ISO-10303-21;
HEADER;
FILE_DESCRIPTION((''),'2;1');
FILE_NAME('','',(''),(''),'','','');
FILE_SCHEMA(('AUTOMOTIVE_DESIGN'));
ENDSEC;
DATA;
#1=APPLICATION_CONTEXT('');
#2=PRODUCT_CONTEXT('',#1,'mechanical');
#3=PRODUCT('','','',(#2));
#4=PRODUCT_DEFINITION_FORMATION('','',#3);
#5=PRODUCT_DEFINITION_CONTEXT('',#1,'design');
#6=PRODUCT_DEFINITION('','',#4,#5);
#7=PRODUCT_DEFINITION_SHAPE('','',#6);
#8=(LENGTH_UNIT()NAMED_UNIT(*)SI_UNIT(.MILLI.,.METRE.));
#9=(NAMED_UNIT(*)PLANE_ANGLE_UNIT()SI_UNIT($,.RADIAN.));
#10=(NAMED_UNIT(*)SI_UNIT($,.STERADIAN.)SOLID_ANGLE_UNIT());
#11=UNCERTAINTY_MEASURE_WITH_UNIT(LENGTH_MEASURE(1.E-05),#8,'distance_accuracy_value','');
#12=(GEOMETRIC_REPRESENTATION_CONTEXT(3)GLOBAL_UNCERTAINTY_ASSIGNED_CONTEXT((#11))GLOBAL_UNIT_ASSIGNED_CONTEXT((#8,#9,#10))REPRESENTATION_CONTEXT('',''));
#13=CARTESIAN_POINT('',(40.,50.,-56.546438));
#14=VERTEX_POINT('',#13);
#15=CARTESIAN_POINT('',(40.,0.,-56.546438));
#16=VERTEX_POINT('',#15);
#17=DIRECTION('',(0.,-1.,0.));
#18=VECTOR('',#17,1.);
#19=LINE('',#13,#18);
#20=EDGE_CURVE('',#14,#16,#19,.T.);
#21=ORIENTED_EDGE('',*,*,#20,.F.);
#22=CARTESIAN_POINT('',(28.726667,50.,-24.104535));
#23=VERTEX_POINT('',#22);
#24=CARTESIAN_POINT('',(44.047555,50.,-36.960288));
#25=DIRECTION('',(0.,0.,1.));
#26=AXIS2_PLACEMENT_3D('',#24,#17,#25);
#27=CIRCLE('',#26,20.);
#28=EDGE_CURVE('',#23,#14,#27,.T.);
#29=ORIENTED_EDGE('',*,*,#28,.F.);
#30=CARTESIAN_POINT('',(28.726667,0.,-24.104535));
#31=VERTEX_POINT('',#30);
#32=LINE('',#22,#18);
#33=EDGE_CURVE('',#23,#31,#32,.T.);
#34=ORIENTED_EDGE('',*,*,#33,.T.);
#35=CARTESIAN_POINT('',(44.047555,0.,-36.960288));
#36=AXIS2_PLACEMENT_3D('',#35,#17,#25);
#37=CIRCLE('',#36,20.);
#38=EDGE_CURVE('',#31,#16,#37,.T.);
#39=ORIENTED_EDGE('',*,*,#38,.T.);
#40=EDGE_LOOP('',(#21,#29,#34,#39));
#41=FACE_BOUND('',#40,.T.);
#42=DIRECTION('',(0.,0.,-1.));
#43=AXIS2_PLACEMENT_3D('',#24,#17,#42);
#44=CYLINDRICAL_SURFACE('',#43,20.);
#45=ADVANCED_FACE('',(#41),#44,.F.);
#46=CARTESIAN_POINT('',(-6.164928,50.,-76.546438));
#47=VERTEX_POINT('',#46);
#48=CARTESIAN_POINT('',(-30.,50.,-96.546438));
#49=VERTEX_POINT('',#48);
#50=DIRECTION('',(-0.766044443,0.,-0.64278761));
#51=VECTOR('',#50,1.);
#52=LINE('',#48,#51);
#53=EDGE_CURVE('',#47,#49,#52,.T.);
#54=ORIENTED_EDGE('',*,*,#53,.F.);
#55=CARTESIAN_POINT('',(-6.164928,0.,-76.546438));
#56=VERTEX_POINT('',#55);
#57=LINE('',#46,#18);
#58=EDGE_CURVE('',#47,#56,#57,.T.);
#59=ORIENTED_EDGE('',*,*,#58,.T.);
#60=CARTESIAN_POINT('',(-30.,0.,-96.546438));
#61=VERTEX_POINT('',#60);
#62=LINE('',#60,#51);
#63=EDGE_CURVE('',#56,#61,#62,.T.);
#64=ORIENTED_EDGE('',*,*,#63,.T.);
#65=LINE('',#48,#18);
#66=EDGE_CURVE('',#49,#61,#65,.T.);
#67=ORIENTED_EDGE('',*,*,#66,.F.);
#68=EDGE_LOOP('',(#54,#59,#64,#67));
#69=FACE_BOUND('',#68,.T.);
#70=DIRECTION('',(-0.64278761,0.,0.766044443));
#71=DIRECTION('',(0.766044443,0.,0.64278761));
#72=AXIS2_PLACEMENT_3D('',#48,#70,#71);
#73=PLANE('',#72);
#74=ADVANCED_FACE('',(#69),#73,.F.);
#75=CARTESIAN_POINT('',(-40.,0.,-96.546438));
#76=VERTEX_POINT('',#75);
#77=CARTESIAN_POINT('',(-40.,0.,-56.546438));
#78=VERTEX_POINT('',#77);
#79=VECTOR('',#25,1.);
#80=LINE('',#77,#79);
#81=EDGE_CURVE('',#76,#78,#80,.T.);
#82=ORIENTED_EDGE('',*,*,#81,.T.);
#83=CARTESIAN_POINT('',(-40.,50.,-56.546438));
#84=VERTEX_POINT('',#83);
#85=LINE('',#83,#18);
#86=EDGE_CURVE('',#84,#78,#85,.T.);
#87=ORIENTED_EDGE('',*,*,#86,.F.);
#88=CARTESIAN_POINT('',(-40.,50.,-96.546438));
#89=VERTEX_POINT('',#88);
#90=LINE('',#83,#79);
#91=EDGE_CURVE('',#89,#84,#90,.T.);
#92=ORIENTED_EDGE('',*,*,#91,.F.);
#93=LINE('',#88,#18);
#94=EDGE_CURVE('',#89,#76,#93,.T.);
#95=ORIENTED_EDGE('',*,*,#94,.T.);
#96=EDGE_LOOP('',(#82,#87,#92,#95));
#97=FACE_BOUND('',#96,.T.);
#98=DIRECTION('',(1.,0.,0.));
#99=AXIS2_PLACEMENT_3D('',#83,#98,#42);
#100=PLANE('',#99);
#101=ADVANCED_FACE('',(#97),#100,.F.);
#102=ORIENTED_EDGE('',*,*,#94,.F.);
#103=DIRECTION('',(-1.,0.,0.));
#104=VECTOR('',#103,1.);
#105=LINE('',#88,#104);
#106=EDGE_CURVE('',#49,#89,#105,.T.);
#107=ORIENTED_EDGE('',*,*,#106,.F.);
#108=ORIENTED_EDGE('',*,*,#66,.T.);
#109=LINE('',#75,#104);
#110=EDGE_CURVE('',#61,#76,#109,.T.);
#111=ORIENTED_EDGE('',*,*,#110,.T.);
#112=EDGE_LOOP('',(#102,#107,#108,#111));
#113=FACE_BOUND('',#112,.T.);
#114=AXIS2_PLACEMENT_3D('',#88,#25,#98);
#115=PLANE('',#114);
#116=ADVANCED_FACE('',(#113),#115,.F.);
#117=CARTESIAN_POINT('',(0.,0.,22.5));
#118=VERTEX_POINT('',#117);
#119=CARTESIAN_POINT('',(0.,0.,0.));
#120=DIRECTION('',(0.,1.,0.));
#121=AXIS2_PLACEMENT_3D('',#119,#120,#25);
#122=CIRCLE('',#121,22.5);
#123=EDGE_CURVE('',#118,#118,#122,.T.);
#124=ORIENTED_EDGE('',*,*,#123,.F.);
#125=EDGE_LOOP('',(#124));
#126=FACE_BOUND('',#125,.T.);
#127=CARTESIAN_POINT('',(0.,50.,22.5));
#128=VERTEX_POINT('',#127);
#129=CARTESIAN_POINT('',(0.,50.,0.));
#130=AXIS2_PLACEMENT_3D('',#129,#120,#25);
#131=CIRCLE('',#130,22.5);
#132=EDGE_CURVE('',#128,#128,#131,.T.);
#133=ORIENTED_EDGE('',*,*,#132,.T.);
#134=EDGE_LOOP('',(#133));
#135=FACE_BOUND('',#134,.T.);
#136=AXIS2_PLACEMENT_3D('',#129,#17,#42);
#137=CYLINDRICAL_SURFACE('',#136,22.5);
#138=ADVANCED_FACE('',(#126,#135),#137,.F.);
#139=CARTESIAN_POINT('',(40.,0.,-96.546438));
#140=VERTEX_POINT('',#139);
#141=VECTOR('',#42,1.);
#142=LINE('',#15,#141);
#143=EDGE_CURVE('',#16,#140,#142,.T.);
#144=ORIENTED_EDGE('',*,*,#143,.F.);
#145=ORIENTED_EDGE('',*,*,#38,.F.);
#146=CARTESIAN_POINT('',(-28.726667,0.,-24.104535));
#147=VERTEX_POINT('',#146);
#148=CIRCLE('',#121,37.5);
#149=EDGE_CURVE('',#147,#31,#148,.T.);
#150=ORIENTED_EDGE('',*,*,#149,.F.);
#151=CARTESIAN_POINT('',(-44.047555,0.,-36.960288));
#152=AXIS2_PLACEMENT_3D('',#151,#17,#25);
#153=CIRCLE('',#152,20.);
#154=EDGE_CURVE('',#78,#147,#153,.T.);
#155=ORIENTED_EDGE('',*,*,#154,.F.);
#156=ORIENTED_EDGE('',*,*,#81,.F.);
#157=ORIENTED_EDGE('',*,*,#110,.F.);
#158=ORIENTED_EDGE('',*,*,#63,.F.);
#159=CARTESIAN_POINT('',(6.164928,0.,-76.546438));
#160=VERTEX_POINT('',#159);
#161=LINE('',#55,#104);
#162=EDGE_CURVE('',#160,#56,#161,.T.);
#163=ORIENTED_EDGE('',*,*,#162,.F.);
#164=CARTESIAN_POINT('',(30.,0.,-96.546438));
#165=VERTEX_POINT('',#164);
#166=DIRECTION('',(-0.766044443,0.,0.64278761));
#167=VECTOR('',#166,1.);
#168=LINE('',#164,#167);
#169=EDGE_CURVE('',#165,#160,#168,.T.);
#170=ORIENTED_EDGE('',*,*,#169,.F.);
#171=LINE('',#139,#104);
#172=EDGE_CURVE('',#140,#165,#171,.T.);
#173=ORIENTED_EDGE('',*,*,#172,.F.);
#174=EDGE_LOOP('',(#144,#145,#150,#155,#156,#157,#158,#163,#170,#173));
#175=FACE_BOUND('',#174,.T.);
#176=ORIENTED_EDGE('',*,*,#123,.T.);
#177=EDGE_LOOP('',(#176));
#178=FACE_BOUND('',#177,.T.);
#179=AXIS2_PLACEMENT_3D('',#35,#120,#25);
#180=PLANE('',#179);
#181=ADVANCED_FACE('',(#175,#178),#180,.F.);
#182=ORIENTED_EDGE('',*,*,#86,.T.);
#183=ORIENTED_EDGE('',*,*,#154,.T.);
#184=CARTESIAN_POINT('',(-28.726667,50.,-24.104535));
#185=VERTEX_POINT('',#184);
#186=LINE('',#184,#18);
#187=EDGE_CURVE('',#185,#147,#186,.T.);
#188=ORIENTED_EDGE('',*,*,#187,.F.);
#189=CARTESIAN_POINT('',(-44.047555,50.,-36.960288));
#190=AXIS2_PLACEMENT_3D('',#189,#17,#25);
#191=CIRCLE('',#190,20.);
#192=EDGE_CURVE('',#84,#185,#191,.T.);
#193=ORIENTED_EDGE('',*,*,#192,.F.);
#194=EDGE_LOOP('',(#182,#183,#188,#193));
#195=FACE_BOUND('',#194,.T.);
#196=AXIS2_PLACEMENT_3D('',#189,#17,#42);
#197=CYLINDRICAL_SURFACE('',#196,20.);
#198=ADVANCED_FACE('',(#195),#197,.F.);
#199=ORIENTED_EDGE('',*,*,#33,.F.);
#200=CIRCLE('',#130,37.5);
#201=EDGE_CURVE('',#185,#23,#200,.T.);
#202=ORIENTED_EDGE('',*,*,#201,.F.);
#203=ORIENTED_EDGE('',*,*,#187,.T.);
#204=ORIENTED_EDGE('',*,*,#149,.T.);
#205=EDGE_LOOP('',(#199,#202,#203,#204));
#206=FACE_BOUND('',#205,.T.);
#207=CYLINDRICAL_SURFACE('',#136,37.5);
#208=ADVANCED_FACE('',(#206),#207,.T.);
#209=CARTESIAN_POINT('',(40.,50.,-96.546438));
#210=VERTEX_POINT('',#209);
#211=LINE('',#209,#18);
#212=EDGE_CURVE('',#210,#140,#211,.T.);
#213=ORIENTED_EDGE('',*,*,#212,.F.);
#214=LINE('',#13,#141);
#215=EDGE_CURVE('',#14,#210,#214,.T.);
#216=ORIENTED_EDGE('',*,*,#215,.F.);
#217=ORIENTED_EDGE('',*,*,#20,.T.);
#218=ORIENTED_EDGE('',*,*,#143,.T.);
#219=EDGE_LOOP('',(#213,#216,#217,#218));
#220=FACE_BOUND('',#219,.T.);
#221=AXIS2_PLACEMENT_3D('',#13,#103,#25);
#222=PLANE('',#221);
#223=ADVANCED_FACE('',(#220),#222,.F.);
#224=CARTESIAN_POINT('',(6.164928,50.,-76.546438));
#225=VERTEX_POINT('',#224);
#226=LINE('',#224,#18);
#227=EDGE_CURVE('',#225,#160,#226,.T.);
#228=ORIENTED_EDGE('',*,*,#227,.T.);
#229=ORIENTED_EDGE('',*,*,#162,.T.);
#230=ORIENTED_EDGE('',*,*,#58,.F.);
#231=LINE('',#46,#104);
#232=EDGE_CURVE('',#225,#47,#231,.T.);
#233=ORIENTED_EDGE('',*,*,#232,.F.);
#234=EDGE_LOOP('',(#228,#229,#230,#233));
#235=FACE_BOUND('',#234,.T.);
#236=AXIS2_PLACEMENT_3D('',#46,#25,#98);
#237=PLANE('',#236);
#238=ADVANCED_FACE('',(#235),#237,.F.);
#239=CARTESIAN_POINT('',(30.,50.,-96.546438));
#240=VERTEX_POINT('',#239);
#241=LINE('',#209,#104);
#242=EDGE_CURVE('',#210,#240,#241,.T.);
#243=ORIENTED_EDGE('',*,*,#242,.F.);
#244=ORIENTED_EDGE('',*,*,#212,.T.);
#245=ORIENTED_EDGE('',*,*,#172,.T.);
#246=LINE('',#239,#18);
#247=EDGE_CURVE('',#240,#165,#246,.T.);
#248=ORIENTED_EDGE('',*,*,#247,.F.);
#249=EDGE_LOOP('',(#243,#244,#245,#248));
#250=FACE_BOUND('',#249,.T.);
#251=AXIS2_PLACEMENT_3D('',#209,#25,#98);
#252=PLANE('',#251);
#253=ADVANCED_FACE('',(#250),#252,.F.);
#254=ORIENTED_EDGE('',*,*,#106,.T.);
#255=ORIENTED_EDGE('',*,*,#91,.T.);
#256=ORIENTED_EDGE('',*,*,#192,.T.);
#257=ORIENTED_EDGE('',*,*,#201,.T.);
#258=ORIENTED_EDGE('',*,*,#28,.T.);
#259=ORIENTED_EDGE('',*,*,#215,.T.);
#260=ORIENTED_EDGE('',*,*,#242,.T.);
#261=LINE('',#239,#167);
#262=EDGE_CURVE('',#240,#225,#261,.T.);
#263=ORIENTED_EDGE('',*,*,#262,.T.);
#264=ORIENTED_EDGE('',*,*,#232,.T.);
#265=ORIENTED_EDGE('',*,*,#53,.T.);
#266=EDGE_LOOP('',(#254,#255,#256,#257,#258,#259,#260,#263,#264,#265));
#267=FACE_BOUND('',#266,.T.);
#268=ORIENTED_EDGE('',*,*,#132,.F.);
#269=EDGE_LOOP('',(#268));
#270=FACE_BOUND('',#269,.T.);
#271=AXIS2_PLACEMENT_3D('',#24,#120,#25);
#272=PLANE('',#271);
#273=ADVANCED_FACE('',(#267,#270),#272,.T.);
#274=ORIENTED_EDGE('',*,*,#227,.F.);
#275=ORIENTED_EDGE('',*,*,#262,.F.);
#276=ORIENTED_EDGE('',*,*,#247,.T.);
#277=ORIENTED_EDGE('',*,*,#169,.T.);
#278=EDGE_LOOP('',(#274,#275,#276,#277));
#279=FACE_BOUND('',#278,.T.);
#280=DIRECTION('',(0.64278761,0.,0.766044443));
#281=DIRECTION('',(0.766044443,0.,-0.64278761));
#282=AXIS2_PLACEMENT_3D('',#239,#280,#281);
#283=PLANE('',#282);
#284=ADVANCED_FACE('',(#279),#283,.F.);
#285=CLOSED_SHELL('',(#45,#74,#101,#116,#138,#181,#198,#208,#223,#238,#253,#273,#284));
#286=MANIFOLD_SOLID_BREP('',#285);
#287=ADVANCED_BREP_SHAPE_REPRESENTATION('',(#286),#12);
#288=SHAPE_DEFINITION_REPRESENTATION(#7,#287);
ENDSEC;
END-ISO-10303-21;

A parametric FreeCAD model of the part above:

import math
import FreeCAD as App
import Part
import Sketcher
Q = App.Units.Quantity

doc = App.newDocument("Part")
body = doc.addObject("PartDesign::Body", "Body")

sketch1 = body.newObject("Sketcher::SketchObject", "Sketch")
sketch1.AttachmentSupport = (doc.getObject("XZ_Plane"), [""])
sketch1.MapMode = "FlatFace"
sketch1.addGeometry([
    Part.LineSegment(App.Vector(6, -77, 0), App.Vector(-6, -77, 0)),
    Part.LineSegment(App.Vector(-6, -77, 0), App.Vector(-30, -97, 0)),
    Part.LineSegment(App.Vector(-30, -97, 0), App.Vector(-40, -97, 0)),
    Part.LineSegment(App.Vector(-40, -97, 0), App.Vector(-40, -57, 0)),
    Part.ArcOfCircle(Part.Circle(App.Vector(-44, -37, 0), App.Vector(0, 0, 1), 20), math.radians(-78), math.radians(40)),
    Part.ArcOfCircle(Part.Circle(App.Vector(0, 0, 0), App.Vector(0, 0, 1), 38), math.radians(-40), math.radians(220)),
    Part.ArcOfCircle(Part.Circle(App.Vector(44, -37, 0), App.Vector(0, 0, 1), 20), math.radians(140), math.radians(258)),
    Part.LineSegment(App.Vector(40, -57, 0), App.Vector(40, -97, 0)),
    Part.LineSegment(App.Vector(40, -97, 0), App.Vector(30, -97, 0)),
    Part.LineSegment(App.Vector(30, -97, 0), App.Vector(6, -77, 0)),
    Part.Circle(App.Vector(0, 0, 0), App.Vector(0, 0, 1), 22),
], False)
sketch1.addConstraint([
    Sketcher.Constraint("Coincident", 0, 2, 1, 1),
    Sketcher.Constraint("Coincident", 1, 2, 2, 1),
    Sketcher.Constraint("Coincident", 2, 2, 3, 1),
    Sketcher.Constraint("Coincident", 3, 2, 4, 1),
    Sketcher.Constraint("Tangent", 4, 2, 5, 2),
    Sketcher.Constraint("Tangent", 5, 1, 6, 1),
    Sketcher.Constraint("Coincident", 6, 2, 7, 1),
    Sketcher.Constraint("Coincident", 7, 2, 8, 1),
    Sketcher.Constraint("Coincident", 8, 2, 9, 1),
    Sketcher.Constraint("Coincident", 9, 2, 0, 1),
    Sketcher.Constraint("Horizontal", 0),
    Sketcher.Constraint("Horizontal", 2),
    Sketcher.Constraint("Vertical", 3),
    Sketcher.Constraint("Vertical", 7),
    Sketcher.Constraint("Horizontal", 8),
    Sketcher.Constraint("Coincident", 5, 3, -1, 1),
    Sketcher.Constraint("Coincident", 10, 3, -1, 1),
    Sketcher.Constraint("Equal", 4, 6),
    Sketcher.Constraint("Symmetric", 3, 2, 6, 2, -2),
    Sketcher.Constraint("Symmetric", 1, 2, 8, 2, -2),
    Sketcher.Constraint("Equal", 1, 9),
    Sketcher.Constraint("Diameter", 10, Q("45 mm")),
    Sketcher.Constraint("Radius", 4, Q("20 mm")),
    Sketcher.Constraint("Radius", 5, Q("37.5 mm")),
    Sketcher.Constraint("DistanceX", 2, 2, 2, 1, Q("10 mm")),
    Sketcher.Constraint("DistanceY", 3, 1, 3, 2, Q("40 mm")),
    Sketcher.Constraint("Angle", 1, Q("-140 deg")),
    Sketcher.Constraint("DistanceX", 1, 2, -1, 1, Q("30 mm")),
    Sketcher.Constraint("DistanceY", 1, 2, 0, 2, Q("20 mm")),
    Sketcher.Constraint("DistanceY", 0, 2, -1, 1, Q("76.546438 mm")),
])
pad1 = body.newObject("PartDesign::Pad", "Pad")
pad1.Profile = sketch1
pad1.Length = 50
pad1.Reversed = True

doc.recompute()
